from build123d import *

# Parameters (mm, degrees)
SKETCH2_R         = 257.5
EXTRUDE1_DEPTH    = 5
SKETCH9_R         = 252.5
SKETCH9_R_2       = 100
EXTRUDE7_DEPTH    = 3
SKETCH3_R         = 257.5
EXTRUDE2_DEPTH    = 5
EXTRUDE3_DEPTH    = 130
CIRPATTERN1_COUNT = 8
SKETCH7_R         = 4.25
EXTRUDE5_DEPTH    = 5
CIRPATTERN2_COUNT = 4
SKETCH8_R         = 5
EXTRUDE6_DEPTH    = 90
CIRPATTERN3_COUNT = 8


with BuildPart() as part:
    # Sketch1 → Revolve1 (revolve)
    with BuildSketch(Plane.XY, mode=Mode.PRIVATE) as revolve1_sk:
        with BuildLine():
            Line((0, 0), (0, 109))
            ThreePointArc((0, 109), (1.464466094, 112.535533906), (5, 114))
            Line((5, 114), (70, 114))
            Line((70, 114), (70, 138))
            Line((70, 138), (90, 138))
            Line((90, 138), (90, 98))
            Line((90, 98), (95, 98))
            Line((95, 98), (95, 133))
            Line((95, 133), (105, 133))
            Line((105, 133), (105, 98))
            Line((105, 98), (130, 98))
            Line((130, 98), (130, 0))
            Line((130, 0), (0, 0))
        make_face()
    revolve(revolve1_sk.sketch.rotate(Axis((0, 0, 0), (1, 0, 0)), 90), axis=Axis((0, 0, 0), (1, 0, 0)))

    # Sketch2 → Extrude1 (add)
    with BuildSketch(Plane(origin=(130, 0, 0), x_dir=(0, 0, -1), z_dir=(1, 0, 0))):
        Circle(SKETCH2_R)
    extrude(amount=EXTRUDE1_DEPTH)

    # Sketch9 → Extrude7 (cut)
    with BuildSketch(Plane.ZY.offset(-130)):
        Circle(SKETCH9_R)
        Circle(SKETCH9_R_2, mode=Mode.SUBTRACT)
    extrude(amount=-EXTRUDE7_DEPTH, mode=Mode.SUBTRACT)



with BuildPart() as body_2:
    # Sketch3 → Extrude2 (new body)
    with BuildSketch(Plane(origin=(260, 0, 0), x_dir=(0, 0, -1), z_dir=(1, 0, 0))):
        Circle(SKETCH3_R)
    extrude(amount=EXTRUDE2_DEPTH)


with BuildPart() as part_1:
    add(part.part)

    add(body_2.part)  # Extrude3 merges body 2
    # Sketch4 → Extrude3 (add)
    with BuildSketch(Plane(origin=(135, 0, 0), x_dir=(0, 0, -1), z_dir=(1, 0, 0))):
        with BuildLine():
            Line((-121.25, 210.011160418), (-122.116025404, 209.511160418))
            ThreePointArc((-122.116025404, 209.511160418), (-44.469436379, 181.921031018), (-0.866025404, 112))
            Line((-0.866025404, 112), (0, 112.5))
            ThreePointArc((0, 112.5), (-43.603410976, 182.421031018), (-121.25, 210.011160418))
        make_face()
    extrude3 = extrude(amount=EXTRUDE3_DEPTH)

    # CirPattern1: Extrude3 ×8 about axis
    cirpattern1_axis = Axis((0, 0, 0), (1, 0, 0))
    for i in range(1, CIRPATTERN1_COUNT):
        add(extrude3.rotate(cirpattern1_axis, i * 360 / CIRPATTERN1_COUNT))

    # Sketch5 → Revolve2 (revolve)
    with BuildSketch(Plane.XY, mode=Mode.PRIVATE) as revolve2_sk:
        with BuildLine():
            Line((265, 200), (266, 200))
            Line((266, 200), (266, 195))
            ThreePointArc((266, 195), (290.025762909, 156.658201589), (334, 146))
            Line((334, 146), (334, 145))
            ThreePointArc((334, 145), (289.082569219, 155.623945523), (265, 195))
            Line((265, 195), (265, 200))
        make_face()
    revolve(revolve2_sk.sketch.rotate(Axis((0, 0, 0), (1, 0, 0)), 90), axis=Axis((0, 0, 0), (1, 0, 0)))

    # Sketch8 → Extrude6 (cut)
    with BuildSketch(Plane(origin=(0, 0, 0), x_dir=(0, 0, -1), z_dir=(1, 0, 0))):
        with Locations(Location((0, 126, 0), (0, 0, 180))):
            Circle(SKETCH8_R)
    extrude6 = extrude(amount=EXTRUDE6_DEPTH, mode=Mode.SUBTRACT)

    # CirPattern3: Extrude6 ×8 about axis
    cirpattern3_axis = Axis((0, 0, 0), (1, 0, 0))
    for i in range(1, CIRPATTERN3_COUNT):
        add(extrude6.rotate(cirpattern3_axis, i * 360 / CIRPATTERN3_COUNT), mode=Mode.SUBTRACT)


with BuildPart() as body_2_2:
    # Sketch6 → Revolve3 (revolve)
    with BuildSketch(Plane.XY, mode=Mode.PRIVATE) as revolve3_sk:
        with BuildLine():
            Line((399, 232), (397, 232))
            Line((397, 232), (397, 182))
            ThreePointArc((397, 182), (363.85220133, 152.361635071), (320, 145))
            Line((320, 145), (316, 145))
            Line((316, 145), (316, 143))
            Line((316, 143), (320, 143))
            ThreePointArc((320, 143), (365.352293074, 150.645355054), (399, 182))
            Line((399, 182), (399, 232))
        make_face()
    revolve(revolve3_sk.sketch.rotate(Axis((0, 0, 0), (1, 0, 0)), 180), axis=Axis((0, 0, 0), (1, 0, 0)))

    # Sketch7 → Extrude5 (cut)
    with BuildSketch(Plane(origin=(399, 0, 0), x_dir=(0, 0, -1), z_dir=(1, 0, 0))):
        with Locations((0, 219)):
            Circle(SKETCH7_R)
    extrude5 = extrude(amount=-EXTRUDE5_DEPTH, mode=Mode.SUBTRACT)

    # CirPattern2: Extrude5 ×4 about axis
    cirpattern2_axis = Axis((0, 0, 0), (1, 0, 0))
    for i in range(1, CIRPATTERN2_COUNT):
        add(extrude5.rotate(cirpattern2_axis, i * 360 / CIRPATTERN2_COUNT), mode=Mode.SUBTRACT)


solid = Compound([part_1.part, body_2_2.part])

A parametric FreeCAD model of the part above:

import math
import FreeCAD as App
import Part
import Sketcher
from FreeCAD import Vector
Q = App.Units.Quantity

doc = App.newDocument("Part")
body = doc.addObject("PartDesign::Body", "Body")

# Sketch on XY plane
sketch1 = body.newObject("Sketcher::SketchObject", "Sketch")
sketch1.AttachmentSupport = (doc.getObject("XY_Plane"), [""])
sketch1.MapMode = "FlatFace"
sketch1.addGeometry(Part.LineSegment(Vector(0, 109, 0), Vector(0, 0, 0)), False)
sketch1.addGeometry(Part.LineSegment(Vector(0, 0, 0), Vector(130, 0, 0)), False)
sketch1.addGeometry(Part.LineSegment(Vector(130, 0, 0), Vector(130, 98, 0)), False)
sketch1.addGeometry(Part.LineSegment(Vector(130, 98, 0), Vector(105, 98, 0)), False)
sketch1.addGeometry(Part.LineSegment(Vector(105, 98, 0), Vector(105, 133, 0)), False)
sketch1.addGeometry(Part.LineSegment(Vector(105, 133, 0), Vector(95, 133, 0)), False)
sketch1.addGeometry(Part.LineSegment(Vector(95, 133, 0), Vector(95, 98, 0)), False)
sketch1.addGeometry(Part.LineSegment(Vector(95, 98, 0), Vector(90, 98, 0)), False)
sketch1.addGeometry(Part.LineSegment(Vector(90, 98, 0), Vector(90, 138, 0)), False)
sketch1.addGeometry(Part.LineSegment(Vector(90, 138, 0), Vector(70, 138, 0)), False)
sketch1.addGeometry(Part.LineSegment(Vector(70, 138, 0), Vector(70, 114, 0)), False)
sketch1.addGeometry(Part.LineSegment(Vector(70, 114, 0), Vector(5, 114, 0)), False)
sketch1.addGeometry(Part.ArcOfCircle(Part.Circle(Vector(5, 109, 0), Vector(0, 0, 1), 5), math.radians(90), math.radians(180)), False)
sketch1.addConstraint(Sketcher.Constraint("Coincident", 0, 2, 1, 1))
sketch1.addConstraint(Sketcher.Constraint("Coincident", 1, 2, 2, 1))
sketch1.addConstraint(Sketcher.Constraint("Coincident", 2, 2, 3, 1))
sketch1.addConstraint(Sketcher.Constraint("Coincident", 3, 2, 4, 1))
sketch1.addConstraint(Sketcher.Constraint("Coincident", 4, 2, 5, 1))
sketch1.addConstraint(Sketcher.Constraint("Coincident", 5, 2, 6, 1))
sketch1.addConstraint(Sketcher.Constraint("Coincident", 6, 2, 7, 1))
sketch1.addConstraint(Sketcher.Constraint("Coincident", 7, 2, 8, 1))
sketch1.addConstraint(Sketcher.Constraint("Coincident", 8, 2, 9, 1))
sketch1.addConstraint(Sketcher.Constraint("Coincident", 9, 2, 10, 1))
sketch1.addConstraint(Sketcher.Constraint("Coincident", 10, 2, 11, 1))
sketch1.addConstraint(Sketcher.Constraint("Tangent", 11, 2, 12, 1))
sketch1.addConstraint(Sketcher.Constraint("Tangent", 12, 2, 0, 1))
sketch1.addConstraint(Sketcher.Constraint("Vertical", 0))
sketch1.addConstraint(Sketcher.Constraint("Horizontal", 1))
sketch1.addConstraint(Sketcher.Constraint("Vertical", 2))
sketch1.addConstraint(Sketcher.Constraint("Horizontal", 3))
sketch1.addConstraint(Sketcher.Constraint("Vertical", 4))
sketch1.addConstraint(Sketcher.Constraint("Horizontal", 5))
sketch1.addConstraint(Sketcher.Constraint("Vertical", 6))
sketch1.addConstraint(Sketcher.Constraint("Horizontal", 7))
sketch1.addConstraint(Sketcher.Constraint("Vertical", 8))
sketch1.addConstraint(Sketcher.Constraint("Horizontal", 9))
sketch1.addConstraint(Sketcher.Constraint("Vertical", 10))
sketch1.addConstraint(Sketcher.Constraint("Horizontal", 11))
sketch1.addConstraint(Sketcher.Constraint("Coincident", 0, 2, -1, 1))
sketch1.addConstraint(Sketcher.Constraint("Horizontal", 3, 2, 6, 2))
sketch1.addConstraint(Sketcher.Constraint("Radius", 12, Q("5 mm")))
sketch1.addConstraint(Sketcher.Constraint("DistanceX", 1, 1, 1, 2, Q("130 mm")))
sketch1.addConstraint(Sketcher.Constraint("DistanceX", 3, 2, 3, 1, Q("25 mm")))
sketch1.addConstraint(Sketcher.Constraint("DistanceX", 5, 2, 5, 1, Q("10 mm")))
sketch1.addConstraint(Sketcher.Constraint("DistanceX", 7, 2, 7, 1, Q("5 mm")))
sketch1.addConstraint(Sketcher.Constraint("DistanceX", 9, 2, 9, 1, Q("20 mm")))
sketch1.addConstraint(Sketcher.Constraint("DistanceY", 0, 2, 0, 1, Q("109 mm")))
sketch1.addConstraint(Sketcher.Constraint("DistanceY", 2, 1, 2, 2, Q("98 mm")))
sketch1.addConstraint(Sketcher.Constraint("DistanceY", 4, 1, 4, 2, Q("35 mm")))
sketch1.addConstraint(Sketcher.Constraint("DistanceY", 8, 1, 8, 2, Q("40 mm")))
revolution = body.newObject("PartDesign::Revolution", "Revolution")
revolution.Profile = sketch1
revolution.ReferenceAxis = (sketch1, ["H_Axis"])
revolution.Angle = 360

# Sketch on YZ plane
sketch2 = body.newObject("Sketcher::SketchObject", "Sketch001")
sketch2.AttachmentSupport = (doc.getObject("YZ_Plane"), [""])
sketch2.MapMode = "FlatFace"
sketch2.AttachmentOffset = App.Placement(Vector(0, 0, 130), App.Rotation())
sketch2.addGeometry(Part.Circle(Vector(0, 0, 0), Vector(0, 0, 1), 258), False)
sketch2.addConstraint(Sketcher.Constraint("Coincident", 0, 3, -1, 1))
sketch2.addConstraint(Sketcher.Constraint("Diameter", 0, Q("515 mm")))
pad1 = body.newObject("PartDesign::Pad", "Pad")
pad1.Profile = sketch2
pad1.Length = 5

# Sketch on YZ plane
sketch3 = body.newObject("Sketcher::SketchObject", "Sketch002")
sketch3.AttachmentSupport = (doc.getObject("YZ_Plane"), [""])
sketch3.MapMode = "FlatFace"
sketch3.AttachmentOffset = App.Placement(Vector(0, 0, 130), App.Rotation())
sketch3.addGeometry(Part.Circle(Vector(0, 0, 0), Vector(0, 0, 1), 252), False)
sketch3.addGeometry(Part.Circle(Vector(0, 0, 0), Vector(0, 0, 1), 100), False)
sketch3.addConstraint(Sketcher.Constraint("Coincident", 0, 3, -1, 1))
sketch3.addConstraint(Sketcher.Constraint("Coincident", 1, 3, -1, 1))
sketch3.addConstraint(Sketcher.Constraint("Diameter", 0, Q("505 mm")))
sketch3.addConstraint(Sketcher.Constraint("Diameter", 1, Q("200 mm")))
pocket1 = body.newObject("PartDesign::Pocket", "Pocket")
pocket1.Profile = sketch3
pocket1.Length = 3
pocket1.Reversed = True
body2 = doc.addObject("PartDesign::Body", "Body001")

# Sketch on YZ plane
sketch4 = body2.newObject("Sketcher::SketchObject", "Sketch003")
sketch4.AttachmentSupport = (doc.getObject("YZ_Plane001"), [""])
sketch4.MapMode = "FlatFace"
sketch4.AttachmentOffset = App.Placement(Vector(0, 0, 260), App.Rotation())
sketch4.addGeometry(Part.Circle(Vector(0, 0, 0), Vector(0, 0, 1), 258), False)
sketch4.addConstraint(Sketcher.Constraint("Coincident", 0, 3, -1, 1))
sketch4.addConstraint(Sketcher.Constraint("Diameter", 0, Q("515 mm")))
pad2 = body2.newObject("PartDesign::Pad", "Pad001")
pad2.Profile = sketch4
pad2.Length = 5
body.AllowCompound = True
doc.recompute()

boolean = body.newObject("PartDesign::Boolean", "Boolean")
boolean.Type = "Fuse"
boolean.addObjects([body2])

# Sketch on YZ plane
sketch5 = body.newObject("Sketcher::SketchObject", "Sketch004")
sketch5.AttachmentSupport = (doc.getObject("YZ_Plane"), [""])
sketch5.MapMode = "FlatFace"
sketch5.AttachmentOffset = App.Placement(Vector(0, 0, 135), App.Rotation())
sketch5.addGeometry(Part.LineSegment(Vector(210, 121.2, 0), Vector(209.5, 122.1, 0)), False)
sketch5.addGeometry(Part.ArcOfCircle(Part.Circle(Vector(84.5, 122.8, 0), Vector(0, 0, 1), 125), math.radians(-77), math.radians(0)), False)
sketch5.addGeometry(Part.LineSegment(Vector(112, 0.9, 0), Vector(112.5, 0, 0)), False)
sketch5.addGeometry(Part.ArcOfCircle(Part.Circle(Vector(85, 121.9, 0), Vector(0, 0, 1), 125), math.radians(-77), math.radians(0)), False)
sketch5.addConstraint(Sketcher.Constraint("Coincident", 0, 2, 1, 2))
sketch5.addConstraint(Sketcher.Constraint("Coincident", 1, 1, 2, 1))
sketch5.addConstraint(Sketcher.Constraint("Coincident", 2, 2, 3, 1))
sketch5.addConstraint(Sketcher.Constraint("Coincident", 3, 2, 0, 1))
sketch5.addConstraint(Sketcher.Constraint("Equal", 1, 3))
sketch5.addConstraint(Sketcher.Constraint("PointOnObject", 2, 2, -1))
sketch5.addConstraint(Sketcher.Constraint("Parallel", 0, 2))
sketch5.addConstraint(Sketcher.Constraint("Equal", 0, 2))
sketch5.addConstraint(Sketcher.Constraint("Radius", 1, Q("125 mm")))
sketch5.addConstraint(Sketcher.Constraint("Angle", 0, Q("120 deg")))
sketch5.addConstraint(Sketcher.Constraint("Distance", 0, Q("1 mm")))
sketch5.addConstraint(Sketcher.Constraint("DistanceX", -1, 1, 1, 1, Q("112 mm")))
sketch5.addConstraint(Sketcher.Constraint("DistanceY", -1, 1, 3, 2, Q("121.25 mm")))
sketch5.addConstraint(Sketcher.Constraint("DistanceY", -1, 1, 3, 3, Q("121.94043 mm")))
pad3 = body.newObject("PartDesign::Pad", "Pad002")
pad3.Profile = sketch5
pad3.Length = 130
doc.recompute()

polarpattern = body.newObject("PartDesign::PolarPattern", "PolarPattern")
polarpattern.Originals = [pad3]
polarpattern.Axis = (doc.getObject("X_Axis"), [""])
polarpattern.Angle = 360
polarpattern.Occurrences = 8
body.Tip = polarpattern

# Sketch on XY plane
sketch6 = body.newObject("Sketcher::SketchObject", "Sketch005")
sketch6.AttachmentSupport = (doc.getObject("XY_Plane"), [""])
sketch6.MapMode = "FlatFace"
sketch6.addGeometry(Part.LineSegment(Vector(266, 200, 0), Vector(265, 200, 0)), False)
sketch6.addGeometry(Part.LineSegment(Vector(265, 200, 0), Vector(265, 195, 0)), False)
sketch6.addGeometry(Part.ArcOfCircle(Part.Circle(Vector(324.3, 204.2, 0), Vector(0, 0, 1), 60), math.radians(-171), math.radians(-81)), False)
sketch6.addGeometry(Part.LineSegment(Vector(334, 145, 0), Vector(334, 146, 0)), False)
sketch6.addGeometry(Part.ArcOfCircle(Part.Circle(Vector(325.1, 205.3, 0), Vector(0, 0, 1), 60), math.radians(-170), math.radians(-81)), False)
sketch6.addGeometry(Part.LineSegment(Vector(266, 195, 0), Vector(266, 200, 0)), False)
sketch6.addConstraint(Sketcher.Constraint("Coincident", 0, 2, 1, 1))
sketch6.addConstraint(Sketcher.Constraint("Coincident", 1, 2, 2, 1))
sketch6.addConstraint(Sketcher.Constraint("Coincident", 2, 2, 3, 1))
sketch6.addConstraint(Sketcher.Constraint("Coincident", 3, 2, 4, 2))
sketch6.addConstraint(Sketcher.Constraint("Coincident", 4, 1, 5, 1))
sketch6.addConstraint(Sketcher.Constraint("Coincident", 5, 2, 0, 1))
sketch6.addConstraint(Sketcher.Constraint("Horizontal", 0))
sketch6.addConstraint(Sketcher.Constraint("Vertical", 1))
sketch6.addConstraint(Sketcher.Constraint("Vertical", 3))
sketch6.addConstraint(Sketcher.Constraint("Vertical", 5))
sketch6.addConstraint(Sketcher.Constraint("Equal", 2, 4))
sketch6.addConstraint(Sketcher.Constraint("Horizontal", 1, 2, 4, 1))
sketch6.addConstraint(Sketcher.Constraint("Equal", 0, 3))
sketch6.addConstraint(Sketcher.Constraint("Radius", 2, Q("60 mm")))
sketch6.addConstraint(Sketcher.Constraint("DistanceX", 0, 2, 0, 1, Q("1 mm")))
sketch6.addConstraint(Sketcher.Constraint("DistanceY", 1, 2, 1, 1, Q("5 mm")))
sketch6.addConstraint(Sketcher.Constraint("DistanceX", -1, 1, 0, 2, Q("265 mm")))
sketch6.addConstraint(Sketcher.Constraint("DistanceY", -1, 1, 0, 2, Q("200 mm")))
sketch6.addConstraint(Sketcher.Constraint("DistanceX", -1, 1, 2, 2, Q("334 mm")))
sketch6.addConstraint(Sketcher.Constraint("DistanceY", -1, 1, 2, 2, Q("145 mm")))
revolution2 = body.newObject("PartDesign::Revolution", "Revolution001")
revolution2.Profile = sketch6
revolution2.ReferenceAxis = (sketch6, ["H_Axis"])
revolution2.Angle = 360

# Sketch on YZ plane
sketch7 = body.newObject("Sketcher::SketchObject", "Sketch006")
sketch7.AttachmentSupport = (doc.getObject("YZ_Plane"), [""])
sketch7.MapMode = "FlatFace"
sketch7.addGeometry(Part.Circle(Vector(126, 0, 0), Vector(0, 0, 1), 5), False)
sketch7.addConstraint(Sketcher.Constraint("PointOnObject", 0, 3, -1))
sketch7.addConstraint(Sketcher.Constraint("Diameter", 0, Q("10 mm")))
sketch7.addConstraint(Sketcher.Constraint("DistanceX", -1, 1, 0, 3, Q("126 mm")))
pocket2 = body.newObject("PartDesign::Pocket", "Pocket001")
pocket2.Profile = sketch7
pocket2.Length = 90
pocket2.Reversed = True
doc.recompute()

polarpattern2 = body.newObject("PartDesign::PolarPattern", "PolarPattern001")
polarpattern2.Originals = [pocket2]
polarpattern2.Axis = (doc.getObject("X_Axis"), [""])
polarpattern2.Angle = 360
polarpattern2.Occurrences = 8
body.Tip = polarpattern2
body3 = doc.addObject("PartDesign::Body", "Body002")

# Sketch on XY plane
sketch8 = body3.newObject("Sketcher::SketchObject", "Sketch007")
sketch8.AttachmentSupport = (doc.getObject("XY_Plane002"), [""])
sketch8.MapMode = "FlatFace"
sketch8.addGeometry(Part.LineSegment(Vector(399, 232, 0), Vector(397, 232, 0)), False)
sketch8.addGeometry(Part.LineSegment(Vector(397, 232, 0), Vector(397, 182, 0)), False)
sketch8.addGeometry(Part.ArcOfCircle(Part.Circle(Vector(329.2, 224.5, 0), Vector(0, 0, 1), 80), math.radians(-97), math.radians(-32)), False)
sketch8.addGeometry(Part.LineSegment(Vector(320, 145, 0), Vector(316, 145, 0)), False)
sketch8.addGeometry(Part.LineSegment(Vector(316, 145, 0), Vector(316, 143, 0)), False)
sketch8.addGeometry(Part.LineSegment(Vector(316, 143, 0), Vector(320, 143, 0)), False)
sketch8.addGeometry(Part.ArcOfCircle(Part.Circle(Vector(329.9, 222.4, 0), Vector(0, 0, 1), 80), math.radians(-97), math.radians(-30)), False)
sketch8.addGeometry(Part.LineSegment(Vector(399, 182, 0), Vector(399, 232, 0)), False)
sketch8.addConstraint(Sketcher.Constraint("Coincident", 0, 2, 1, 1))
sketch8.addConstraint(Sketcher.Constraint("Coincident", 1, 2, 2, 2))
sketch8.addConstraint(Sketcher.Constraint("Coincident", 2, 1, 3, 1))
sketch8.addConstraint(Sketcher.Constraint("Coincident", 3, 2, 4, 1))
sketch8.addConstraint(Sketcher.Constraint("Coincident", 4, 2, 5, 1))
sketch8.addConstraint(Sketcher.Constraint("Coincident", 5, 2, 6, 1))
sketch8.addConstraint(Sketcher.Constraint("Coincident", 6, 2, 7, 1))
sketch8.addConstraint(Sketcher.Constraint("Coincident", 7, 2, 0, 1))
sketch8.addConstraint(Sketcher.Constraint("Horizontal", 0))
sketch8.addConstraint(Sketcher.Constraint("Vertical", 1))
sketch8.addConstraint(Sketcher.Constraint("Horizontal", 3))
sketch8.addConstraint(Sketcher.Constraint("Vertical", 4))
sketch8.addConstraint(Sketcher.Constraint("Horizontal", 5))
sketch8.addConstraint(Sketcher.Constraint("Vertical", 7))
sketch8.addConstraint(Sketcher.Constraint("Equal", 2, 6))
sketch8.addConstraint(Sketcher.Constraint("Horizontal", 1, 2, 6, 2))
sketch8.addConstraint(Sketcher.Constraint("Vertical", 2, 1, 5, 2))
sketch8.addConstraint(Sketcher.Constraint("Equal", 0, 4))
sketch8.addConstraint(Sketcher.Constraint("Radius", 2, Q("80 mm")))
sketch8.addConstraint(Sketcher.Constraint("DistanceX", 0, 2, 0, 1, Q("2 mm")))
sketch8.addConstraint(Sketcher.Constraint("DistanceX", 3, 2, 3, 1, Q("4 mm")))
sketch8.addConstraint(Sketcher.Constraint("DistanceY", 1, 2, 1, 1, Q("50 mm")))
sketch8.addConstraint(Sketcher.Constraint("DistanceX", -1, 1, 0, 2, Q("397 mm")))
sketch8.addConstraint(Sketcher.Constraint("DistanceY", -1, 1, 0, 2, Q("232 mm")))
sketch8.addConstraint(Sketcher.Constraint("DistanceX", -1, 1, 2, 1, Q("320 mm")))
sketch8.addConstraint(Sketcher.Constraint("DistanceY", -1, 1, 2, 1, Q("145 mm")))
revolution3 = body3.newObject("PartDesign::Revolution", "Revolution002")
revolution3.Profile = sketch8
revolution3.ReferenceAxis = (sketch8, ["H_Axis"])
revolution3.Angle = 360

# Sketch on YZ plane
sketch9 = body3.newObject("Sketcher::SketchObject", "Sketch008")
sketch9.AttachmentSupport = (doc.getObject("YZ_Plane002"), [""])
sketch9.MapMode = "FlatFace"
sketch9.AttachmentOffset = App.Placement(Vector(0, 0, 399), App.Rotation())
sketch9.addGeometry(Part.Circle(Vector(219, 0, 0), Vector(0, 0, 1), 4.2), False)
sketch9.addConstraint(Sketcher.Constraint("PointOnObject", 0, 3, -1))
sketch9.addConstraint(Sketcher.Constraint("Diameter", 0, Q("8.5 mm")))
sketch9.addConstraint(Sketcher.Constraint("DistanceX", -1, 1, 0, 3, Q("219 mm")))
pocket3 = body3.newObject("PartDesign::Pocket", "Pocket002")
pocket3.Profile = sketch9
pocket3.Length = 5
doc.recompute()

polarpattern3 = body3.newObject("PartDesign::PolarPattern", "PolarPattern002")
polarpattern3.Originals = [pocket3]
polarpattern3.Axis = (doc.getObject("X_Axis002"), [""])
polarpattern3.Angle = 360
polarpattern3.Occurrences = 4
body3.Tip = polarpattern3

doc.recompute()
